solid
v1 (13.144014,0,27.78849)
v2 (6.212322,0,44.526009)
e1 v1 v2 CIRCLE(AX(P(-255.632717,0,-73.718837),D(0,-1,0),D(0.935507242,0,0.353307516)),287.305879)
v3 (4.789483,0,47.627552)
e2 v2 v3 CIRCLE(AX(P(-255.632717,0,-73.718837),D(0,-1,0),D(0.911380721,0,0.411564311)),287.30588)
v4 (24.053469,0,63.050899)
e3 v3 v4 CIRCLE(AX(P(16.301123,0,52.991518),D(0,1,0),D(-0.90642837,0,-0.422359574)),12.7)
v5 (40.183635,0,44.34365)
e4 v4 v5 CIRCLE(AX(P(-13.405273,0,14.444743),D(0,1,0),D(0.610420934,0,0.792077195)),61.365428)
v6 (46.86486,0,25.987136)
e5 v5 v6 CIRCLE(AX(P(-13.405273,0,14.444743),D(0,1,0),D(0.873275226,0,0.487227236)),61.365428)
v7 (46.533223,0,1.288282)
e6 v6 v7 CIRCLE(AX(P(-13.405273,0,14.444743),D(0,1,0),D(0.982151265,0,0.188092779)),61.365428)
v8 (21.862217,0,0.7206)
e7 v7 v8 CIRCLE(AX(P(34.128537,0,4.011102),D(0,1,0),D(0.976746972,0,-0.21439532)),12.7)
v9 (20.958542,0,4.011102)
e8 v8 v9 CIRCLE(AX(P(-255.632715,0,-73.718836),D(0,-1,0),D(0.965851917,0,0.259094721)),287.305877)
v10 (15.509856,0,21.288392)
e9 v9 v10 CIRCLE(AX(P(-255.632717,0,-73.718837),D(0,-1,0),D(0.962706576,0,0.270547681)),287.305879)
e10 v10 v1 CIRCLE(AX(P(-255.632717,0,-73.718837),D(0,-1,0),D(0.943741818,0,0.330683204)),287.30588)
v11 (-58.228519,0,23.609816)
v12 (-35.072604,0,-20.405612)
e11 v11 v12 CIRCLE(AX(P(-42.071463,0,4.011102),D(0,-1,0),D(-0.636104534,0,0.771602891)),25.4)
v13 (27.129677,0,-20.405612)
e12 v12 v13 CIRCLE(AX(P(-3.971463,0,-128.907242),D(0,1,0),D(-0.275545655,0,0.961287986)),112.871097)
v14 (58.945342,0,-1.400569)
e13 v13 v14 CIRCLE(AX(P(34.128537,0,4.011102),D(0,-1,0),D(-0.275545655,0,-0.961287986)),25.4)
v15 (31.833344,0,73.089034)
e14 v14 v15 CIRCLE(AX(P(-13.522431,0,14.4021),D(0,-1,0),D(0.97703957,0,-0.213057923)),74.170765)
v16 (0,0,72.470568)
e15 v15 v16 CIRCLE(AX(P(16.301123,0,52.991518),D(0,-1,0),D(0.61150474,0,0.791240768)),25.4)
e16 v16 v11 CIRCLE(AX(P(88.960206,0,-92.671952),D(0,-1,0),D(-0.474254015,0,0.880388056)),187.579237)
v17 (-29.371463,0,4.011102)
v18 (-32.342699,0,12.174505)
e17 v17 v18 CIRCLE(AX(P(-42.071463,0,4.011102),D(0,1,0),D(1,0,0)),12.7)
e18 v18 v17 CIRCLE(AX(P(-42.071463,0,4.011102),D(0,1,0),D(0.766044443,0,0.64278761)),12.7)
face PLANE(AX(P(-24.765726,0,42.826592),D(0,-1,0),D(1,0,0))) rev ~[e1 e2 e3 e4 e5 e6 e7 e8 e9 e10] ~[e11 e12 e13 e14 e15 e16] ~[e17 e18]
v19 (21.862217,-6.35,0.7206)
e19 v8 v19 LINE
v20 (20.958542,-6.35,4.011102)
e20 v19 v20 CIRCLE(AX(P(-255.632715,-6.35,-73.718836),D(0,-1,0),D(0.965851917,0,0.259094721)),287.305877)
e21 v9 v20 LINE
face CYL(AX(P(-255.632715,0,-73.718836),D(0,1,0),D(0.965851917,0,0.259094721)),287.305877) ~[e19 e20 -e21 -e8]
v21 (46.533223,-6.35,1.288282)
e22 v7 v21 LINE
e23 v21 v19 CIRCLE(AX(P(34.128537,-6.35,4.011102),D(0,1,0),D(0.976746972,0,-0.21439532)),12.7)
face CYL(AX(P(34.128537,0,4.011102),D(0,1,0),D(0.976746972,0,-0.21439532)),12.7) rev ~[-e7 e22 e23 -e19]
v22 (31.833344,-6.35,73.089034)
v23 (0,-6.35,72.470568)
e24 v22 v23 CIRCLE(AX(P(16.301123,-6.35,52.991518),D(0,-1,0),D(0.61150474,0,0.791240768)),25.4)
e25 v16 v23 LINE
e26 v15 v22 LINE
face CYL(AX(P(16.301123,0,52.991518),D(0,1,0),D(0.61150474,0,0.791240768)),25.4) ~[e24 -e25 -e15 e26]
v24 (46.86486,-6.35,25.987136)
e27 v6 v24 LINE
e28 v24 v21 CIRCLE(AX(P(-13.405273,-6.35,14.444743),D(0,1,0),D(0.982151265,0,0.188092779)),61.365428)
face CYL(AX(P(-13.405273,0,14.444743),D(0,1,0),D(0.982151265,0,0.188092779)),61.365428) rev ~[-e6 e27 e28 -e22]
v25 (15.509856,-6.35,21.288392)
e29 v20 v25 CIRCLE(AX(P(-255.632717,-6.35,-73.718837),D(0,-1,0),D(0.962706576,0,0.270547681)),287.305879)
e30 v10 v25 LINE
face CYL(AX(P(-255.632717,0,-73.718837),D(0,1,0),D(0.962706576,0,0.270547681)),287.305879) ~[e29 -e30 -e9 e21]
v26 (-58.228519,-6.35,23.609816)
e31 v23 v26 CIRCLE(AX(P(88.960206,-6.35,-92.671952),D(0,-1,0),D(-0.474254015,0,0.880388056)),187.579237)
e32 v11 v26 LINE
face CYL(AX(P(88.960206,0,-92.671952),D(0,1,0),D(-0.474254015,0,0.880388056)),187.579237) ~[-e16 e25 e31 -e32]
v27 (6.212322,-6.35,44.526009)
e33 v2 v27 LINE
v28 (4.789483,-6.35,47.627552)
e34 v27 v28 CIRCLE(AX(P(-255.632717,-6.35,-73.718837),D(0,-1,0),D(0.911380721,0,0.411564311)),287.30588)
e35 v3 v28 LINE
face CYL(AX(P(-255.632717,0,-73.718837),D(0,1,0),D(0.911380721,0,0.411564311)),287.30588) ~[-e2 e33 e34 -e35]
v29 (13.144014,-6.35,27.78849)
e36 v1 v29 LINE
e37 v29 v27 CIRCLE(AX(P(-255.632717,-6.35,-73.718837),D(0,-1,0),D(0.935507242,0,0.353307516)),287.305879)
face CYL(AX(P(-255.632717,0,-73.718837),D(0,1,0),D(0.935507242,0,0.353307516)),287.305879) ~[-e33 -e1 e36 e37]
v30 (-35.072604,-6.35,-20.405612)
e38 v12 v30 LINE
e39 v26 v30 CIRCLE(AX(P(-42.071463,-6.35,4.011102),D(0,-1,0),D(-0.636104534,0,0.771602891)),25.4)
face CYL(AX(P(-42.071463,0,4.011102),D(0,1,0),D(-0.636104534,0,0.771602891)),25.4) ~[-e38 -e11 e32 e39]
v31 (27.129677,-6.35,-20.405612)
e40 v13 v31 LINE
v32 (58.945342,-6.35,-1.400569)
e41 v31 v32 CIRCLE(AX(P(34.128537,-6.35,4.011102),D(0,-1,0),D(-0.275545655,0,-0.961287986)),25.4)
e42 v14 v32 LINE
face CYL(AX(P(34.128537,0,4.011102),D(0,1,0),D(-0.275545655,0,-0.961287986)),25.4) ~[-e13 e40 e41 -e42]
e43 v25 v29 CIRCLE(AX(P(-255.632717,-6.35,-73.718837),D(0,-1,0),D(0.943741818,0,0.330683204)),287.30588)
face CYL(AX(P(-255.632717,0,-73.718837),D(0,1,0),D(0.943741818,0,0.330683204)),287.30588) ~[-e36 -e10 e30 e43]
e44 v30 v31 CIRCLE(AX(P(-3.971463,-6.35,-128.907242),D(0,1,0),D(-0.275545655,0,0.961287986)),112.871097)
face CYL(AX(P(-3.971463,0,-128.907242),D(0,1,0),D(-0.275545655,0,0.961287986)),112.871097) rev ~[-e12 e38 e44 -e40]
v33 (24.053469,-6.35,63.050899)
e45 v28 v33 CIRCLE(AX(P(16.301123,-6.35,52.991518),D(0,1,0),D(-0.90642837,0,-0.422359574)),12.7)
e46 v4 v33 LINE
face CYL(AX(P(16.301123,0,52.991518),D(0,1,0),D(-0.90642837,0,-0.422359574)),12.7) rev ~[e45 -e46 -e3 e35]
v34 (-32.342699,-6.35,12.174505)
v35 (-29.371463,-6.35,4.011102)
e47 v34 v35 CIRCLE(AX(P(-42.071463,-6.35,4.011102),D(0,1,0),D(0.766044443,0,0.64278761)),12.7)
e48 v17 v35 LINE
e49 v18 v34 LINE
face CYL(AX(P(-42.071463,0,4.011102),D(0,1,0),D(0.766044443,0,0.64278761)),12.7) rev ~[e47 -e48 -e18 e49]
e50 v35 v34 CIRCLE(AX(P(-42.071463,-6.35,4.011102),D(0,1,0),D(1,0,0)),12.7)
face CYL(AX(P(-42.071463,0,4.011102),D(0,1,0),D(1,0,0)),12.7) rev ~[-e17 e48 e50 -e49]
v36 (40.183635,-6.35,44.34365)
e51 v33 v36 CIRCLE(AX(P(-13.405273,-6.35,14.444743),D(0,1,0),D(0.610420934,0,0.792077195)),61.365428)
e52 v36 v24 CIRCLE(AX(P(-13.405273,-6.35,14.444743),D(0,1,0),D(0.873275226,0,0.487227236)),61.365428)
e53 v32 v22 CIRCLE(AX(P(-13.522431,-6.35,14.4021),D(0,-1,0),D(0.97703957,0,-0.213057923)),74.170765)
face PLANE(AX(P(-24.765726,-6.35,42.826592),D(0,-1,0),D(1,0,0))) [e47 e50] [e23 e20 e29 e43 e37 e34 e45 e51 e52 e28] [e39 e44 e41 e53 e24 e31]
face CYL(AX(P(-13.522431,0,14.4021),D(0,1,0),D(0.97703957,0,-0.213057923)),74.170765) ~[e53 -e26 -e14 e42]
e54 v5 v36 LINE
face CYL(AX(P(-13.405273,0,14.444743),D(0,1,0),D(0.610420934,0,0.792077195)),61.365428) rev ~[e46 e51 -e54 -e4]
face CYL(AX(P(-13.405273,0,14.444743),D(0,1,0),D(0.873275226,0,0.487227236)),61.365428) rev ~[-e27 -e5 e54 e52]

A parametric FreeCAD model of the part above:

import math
import FreeCAD as App
import Part
import Sketcher
from FreeCAD import Vector
Q = App.Units.Quantity

doc = App.newDocument("Part")
body = doc.addObject("PartDesign::Body", "Body")

# Sketch on XZ plane
sketch1 = body.newObject("Sketcher::SketchObject", "Sketch")
sketch1.AttachmentSupport = (doc.getObject("XZ_Plane"), [""])
sketch1.MapMode = "FlatFace"
sketch1.addGeometry([
    Part.ArcOfCircle(Part.Circle(Vector(89, -92.7, 0), Vector(0, 0, 1), 187.6), math.radians(118), math.radians(142)),  # 0
    Part.ArcOfCircle(Part.Circle(Vector(-42.1, 4, 0), Vector(0, 0, 1), 25.4), math.radians(130), math.radians(286)),  # 1
    Part.ArcOfCircle(Part.Circle(Vector(-4, -128.9, 0), Vector(0, 0, 1), 112.9), math.radians(74), math.radians(106)),  # 2
    Part.ArcOfCircle(Part.Circle(Vector(34.1, 4, 0), Vector(0, 0, 1), 25.4), math.radians(-106), math.radians(-12)),  # 3
    Part.ArcOfCircle(Part.Circle(Vector(-13.5, 14.4, 0), Vector(0, 0, 1), 74.2), math.radians(-12), math.radians(52)),  # 4
    Part.ArcOfCircle(Part.Circle(Vector(16.3, 53, 0), Vector(0, 0, 1), 25.4), math.radians(52), math.radians(130)),  # 5
    Part.ArcOfCircle(Part.Circle(Vector(-42.1, 4, 0), Vector(0, 0, 1), 12.7), math.radians(40), math.radians(360)),  # 6
    Part.ArcOfCircle(Part.Circle(Vector(-42.1, 4, 0), Vector(0, 0, 1), 12.7), math.radians(0), math.radians(40)),  # 7
    Part.ArcOfCircle(Part.Circle(Vector(-255.6, -73.7, 0), Vector(0, 0, 1), 287.3), math.radians(20.69), math.radians(24.3)),  # 8
    Part.ArcOfCircle(Part.Circle(Vector(-255.6, -73.7, 0), Vector(0, 0, 1), 287.3), math.radians(24.3), math.radians(24.98)),  # 9
    Part.ArcOfCircle(Part.Circle(Vector(16.3, 53, 0), Vector(0, 0, 1), 12.7), math.radians(52), math.radians(205)),  # 10
    Part.ArcOfCircle(Part.Circle(Vector(-13.4, 14.4, 0), Vector(0, 0, 1), 61.4), math.radians(29), math.radians(52)),  # 11
    Part.ArcOfCircle(Part.Circle(Vector(-13.4, 14.4, 0), Vector(0, 0, 1), 61.4), math.radians(10.84), math.radians(29.16)),  # 12
    Part.ArcOfCircle(Part.Circle(Vector(-13.4, 14.4, 0), Vector(0, 0, 1), 61.4), math.radians(-12), math.radians(11)),  # 13
    Part.ArcOfCircle(Part.Circle(Vector(34.1, 4, 0), Vector(0, 0, 1), 12.7), math.radians(-165), math.radians(-12)),  # 14
    Part.ArcOfCircle(Part.Circle(Vector(-255.6, -73.7, 0), Vector(0, 0, 1), 287.3), math.radians(15.02), math.radians(15.7)),  # 15
    Part.ArcOfCircle(Part.Circle(Vector(-255.6, -73.7, 0), Vector(0, 0, 1), 287.3), math.radians(15.7), math.radians(19.31)),  # 16
    Part.ArcOfCircle(Part.Circle(Vector(-255.6, -73.7, 0), Vector(0, 0, 1), 287.3), math.radians(19.31), math.radians(20.69)),  # 17
], False)
sketch1.addConstraint([
    Sketcher.Constraint("Coincident", 0, 2, 1, 1),
    Sketcher.Constraint("Tangent", 1, 2, 2, 2),
    Sketcher.Constraint("Tangent", 2, 1, 3, 1),
    Sketcher.Constraint("Tangent", 3, 2, 4, 1),
    Sketcher.Constraint("Tangent", 4, 2, 5, 1),
    Sketcher.Constraint("Coincident", 5, 2, 0, 1),
    Sketcher.Constraint("Tangent", 6, 1, 7, 2),
    Sketcher.Constraint("Coincident", 7, 1, 6, 2),
    Sketcher.Constraint("Tangent", 8, 2, 9, 1),
    Sketcher.Constraint("Tangent", 9, 2, 10, 2),
    Sketcher.Constraint("Tangent", 10, 1, 11, 2),
    Sketcher.Constraint("Tangent", 11, 1, 12, 2),
    Sketcher.Constraint("Tangent", 12, 1, 13, 2),
    Sketcher.Constraint("Tangent", 13, 1, 14, 2),
    Sketcher.Constraint("Tangent", 14, 1, 15, 1),
    Sketcher.Constraint("Tangent", 15, 2, 16, 1),
    Sketcher.Constraint("Tangent", 16, 2, 17, 1),
    Sketcher.Constraint("Tangent", 17, 2, 8, 1),
    Sketcher.Constraint("Coincident", 6, 3, 1, 3),
    Sketcher.Constraint("Coincident", 10, 3, 5, 3),
    Sketcher.Constraint("Coincident", 13, 3, 11, 3),
    Sketcher.Constraint("Coincident", 14, 3, 3, 3),
    Sketcher.Constraint("Coincident", 15, 3, 8, 3),
    Sketcher.Constraint("Equal", 1, 3),
    Sketcher.Constraint("Equal", 3, 5),
    Sketcher.Constraint("Equal", 8, 9),
    Sketcher.Constraint("Equal", 7, 10),
    Sketcher.Constraint("Equal", 10, 14),
    Sketcher.Constraint("Equal", 9, 16),
    Sketcher.Constraint("PointOnObject", 5, 2, -2),
    Sketcher.Constraint("Horizontal", 1, 3, 3, 3),
    Sketcher.Constraint("Horizontal", 14, 3, 7, 1),
    Sketcher.Constraint("Horizontal", 7, 1, 15, 2),
    Sketcher.Constraint("Radius", 1, Q("1 in")),
    Sketcher.Constraint("Radius", 6, Q("0.5 in")),
    Sketcher.Constraint("DistanceX", 1, 3, 3, 3, Q("3 in")),
    Sketcher.Constraint("Radius", 8, 287.305879),
    Sketcher.Constraint("Radius", 11, 61.365428),
    Sketcher.Constraint("Radius", 0, 187.579237),
    Sketcher.Constraint("Radius", 2, 112.871097),
    Sketcher.Constraint("Radius", 4, 74.170765),
    Sketcher.Constraint("DistanceY", 2, 3, 4, 3, Q("5.6421001 in")),
    Sketcher.Constraint("DistanceY", -1, 1, 4, 3, 14.4021),
    Sketcher.Constraint("DistanceX", 6, 1, -1, 1, 32.342699),
    Sketcher.Constraint("DistanceY", -1, 1, 10, 1, 63.050899),
    Sketcher.Constraint("DistanceX", 8, 2, 5, 3, 10.088801),
    Sketcher.Constraint("DistanceX", 4, 3, -1, 1, 13.522431),
    Sketcher.Constraint("DistanceX", 0, 2, -1, 1, 58.228519),
    Sketcher.Constraint("DistanceY", -1, 1, 11, 1, 44.34365),
    Sketcher.Constraint("DistanceX", -1, 1, 12, 1, 46.86486),
    Sketcher.Constraint("DistanceY", -1, 1, 16, 2, 21.288392),
    Sketcher.Constraint("DistanceY", -1, 1, 17, 2, 27.78849),
])
pad1 = body.newObject("PartDesign::Pad", "Pad")
pad1.Profile = sketch1
pad1.Length = Q("0.25 in")

doc.recompute()
